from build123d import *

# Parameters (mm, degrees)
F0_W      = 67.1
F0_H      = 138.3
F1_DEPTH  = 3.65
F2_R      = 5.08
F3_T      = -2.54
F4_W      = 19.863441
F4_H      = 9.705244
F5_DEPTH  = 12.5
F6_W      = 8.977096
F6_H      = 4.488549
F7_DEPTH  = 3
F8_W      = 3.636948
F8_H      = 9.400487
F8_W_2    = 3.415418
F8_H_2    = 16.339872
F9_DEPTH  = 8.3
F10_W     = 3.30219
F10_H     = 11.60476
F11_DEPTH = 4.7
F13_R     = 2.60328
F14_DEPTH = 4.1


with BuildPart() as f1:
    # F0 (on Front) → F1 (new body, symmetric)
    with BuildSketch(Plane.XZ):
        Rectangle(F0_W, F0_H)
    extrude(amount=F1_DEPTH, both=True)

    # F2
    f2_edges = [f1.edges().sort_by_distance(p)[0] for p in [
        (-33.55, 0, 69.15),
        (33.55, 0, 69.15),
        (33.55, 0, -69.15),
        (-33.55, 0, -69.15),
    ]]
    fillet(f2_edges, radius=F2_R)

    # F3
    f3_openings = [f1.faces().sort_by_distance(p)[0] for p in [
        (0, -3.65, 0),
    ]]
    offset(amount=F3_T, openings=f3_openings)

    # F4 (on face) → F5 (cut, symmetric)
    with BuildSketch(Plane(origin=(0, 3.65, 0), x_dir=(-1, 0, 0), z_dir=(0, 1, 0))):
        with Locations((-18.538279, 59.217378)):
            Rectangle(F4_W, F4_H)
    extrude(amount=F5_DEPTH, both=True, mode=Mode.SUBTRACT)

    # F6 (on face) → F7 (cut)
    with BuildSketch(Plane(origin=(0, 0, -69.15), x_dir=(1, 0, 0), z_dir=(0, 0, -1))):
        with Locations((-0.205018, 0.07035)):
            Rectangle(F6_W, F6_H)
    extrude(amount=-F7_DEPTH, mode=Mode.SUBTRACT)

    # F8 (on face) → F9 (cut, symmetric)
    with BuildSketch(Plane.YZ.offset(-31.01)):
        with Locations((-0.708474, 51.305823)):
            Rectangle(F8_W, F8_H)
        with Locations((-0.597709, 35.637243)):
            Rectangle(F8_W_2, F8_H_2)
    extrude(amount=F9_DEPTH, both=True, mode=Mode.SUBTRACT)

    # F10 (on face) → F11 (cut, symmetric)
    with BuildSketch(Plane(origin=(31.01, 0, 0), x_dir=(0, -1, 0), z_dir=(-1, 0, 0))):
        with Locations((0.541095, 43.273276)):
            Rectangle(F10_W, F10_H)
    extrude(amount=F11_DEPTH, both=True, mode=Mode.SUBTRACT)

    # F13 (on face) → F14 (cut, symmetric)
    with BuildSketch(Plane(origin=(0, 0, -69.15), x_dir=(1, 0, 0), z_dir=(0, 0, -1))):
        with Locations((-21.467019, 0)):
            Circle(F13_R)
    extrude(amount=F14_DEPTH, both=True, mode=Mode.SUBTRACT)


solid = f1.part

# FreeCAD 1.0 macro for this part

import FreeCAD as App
import Part
import Sketcher
from FreeCAD import Vector
Q = App.Units.Quantity


def edges_at(feature, points):
    """Names of the edges that pass closest to the given points."""
    edges = feature.Shape.Edges
    near = lambda p: min(range(len(edges)), key=lambda i: edges[i].distToShape(Part.Vertex(*p))[0])
    return sorted({f"Edge{near(p) + 1}" for p in points})


def faces_at(feature, points):
    """Names of the faces that lie closest to the given points."""
    faces = feature.Shape.Faces
    near = lambda p: min(range(len(faces)), key=lambda i: faces[i].distToShape(Part.Vertex(*p))[0])
    return sorted({f"Face{near(p) + 1}" for p in points})


def add_polygon(sketch, points):
    """Adds a closed chain of lines whose ends are joined by coincident constraints."""
    first, n = sketch.GeometryCount, len(points)
    for a, b in zip(points, points[1:] + points[:1]):
        sketch.addGeometry(Part.LineSegment(App.Vector(*a, 0), App.Vector(*b, 0)), False)
    for i in range(n):
        sketch.addConstraint(Sketcher.Constraint("Coincident", first + i, 2, first + (i + 1) % n, 1))

doc = App.newDocument("Part")
body = doc.addObject("PartDesign::Body", "Body")

# Sketch on XZ plane
sketch1 = body.newObject("Sketcher::SketchObject", "Sketch")
sketch1.AttachmentSupport = (doc.getObject("XZ_Plane"), [""])
sketch1.MapMode = "FlatFace"
add_polygon(sketch1, [(-34, 69), (-34, -69), (34, -69), (34, 69)])  # lines 0-3
sketch1.addConstraint(Sketcher.Constraint("Vertical", 0))
sketch1.addConstraint(Sketcher.Constraint("Horizontal", 1))
sketch1.addConstraint(Sketcher.Constraint("Vertical", 2))
sketch1.addConstraint(Sketcher.Constraint("Horizontal", 3))
sketch1.addConstraint(Sketcher.Constraint("Symmetric", 0, 2, 2, 2, -1, 1))
sketch1.addConstraint(Sketcher.Constraint("DistanceX", 1, 1, 1, 2, Q("67.1 mm")))
sketch1.addConstraint(Sketcher.Constraint("DistanceY", 0, 2, 0, 1, Q("138.3 mm")))
pad1 = body.newObject("PartDesign::Pad", "Pad")
pad1.Profile = sketch1
pad1.Length = 7.3
pad1.Midplane = True
doc.recompute()

fillet = body.newObject("PartDesign::Fillet", "Fillet")
fillet.Base = (pad1, edges_at(pad1, [
    (-33.55, 0, 69.15),
    (33.55, 0, 69.15),
    (33.55, 0, -69.15),
    (-33.55, 0, -69.15),
]))
fillet.Radius = 5.08
doc.recompute()

thickness = body.newObject("PartDesign::Thickness", "Thickness")
thickness.Base = (fillet, faces_at(fillet, [(0, -3.65, 0)]))
thickness.Value = 2.54
thickness.Reversed = True
thickness.Join = "Arc"

# Sketch on XZ plane
sketch2 = body.newObject("Sketcher::SketchObject", "Sketch001")
sketch2.AttachmentSupport = (doc.getObject("XZ_Plane"), [""])
sketch2.MapMode = "FlatFace"
sketch2.AttachmentOffset = App.Placement(Vector(0, 0, -3.65), App.Rotation())
add_polygon(sketch2, [(28, 64), (28, 54), (9, 54), (9, 64)])  # lines 0-3
sketch2.addConstraint(Sketcher.Constraint("Vertical", 0))
sketch2.addConstraint(Sketcher.Constraint("Horizontal", 1))
sketch2.addConstraint(Sketcher.Constraint("Vertical", 2))
sketch2.addConstraint(Sketcher.Constraint("Horizontal", 3))
sketch2.addConstraint(Sketcher.Constraint("DistanceX", -1, 1, 0, 2, Q("28.47 mm")))
sketch2.addConstraint(Sketcher.Constraint("DistanceY", -1, 1, 2, 2, Q("64.07 mm")))
sketch2.addConstraint(Sketcher.Constraint("DistanceX", 1, 2, 1, 1, Q("19.863441 mm")))
sketch2.addConstraint(Sketcher.Constraint("DistanceY", 0, 2, 0, 1, Q("9.705244 mm")))
pocket1 = body.newObject("PartDesign::Pocket", "Pocket")
pocket1.Profile = sketch2
pocket1.Length = 25
pocket1.Midplane = True

# Sketch on XY plane
sketch3 = body.newObject("Sketcher::SketchObject", "Sketch002")
sketch3.AttachmentSupport = (doc.getObject("XY_Plane"), [""])
sketch3.MapMode = "FlatFace"
sketch3.AttachmentOffset = App.Placement(Vector(0, 0, -69.15), App.Rotation())
add_polygon(sketch3, [(-4.7, -2.3), (-4.7, 2.2), (4.3, 2.2), (4.3, -2.3)])  # lines 0-3
sketch3.addConstraint(Sketcher.Constraint("Vertical", 0))
sketch3.addConstraint(Sketcher.Constraint("Horizontal", 1))
sketch3.addConstraint(Sketcher.Constraint("Vertical", 2))
sketch3.addConstraint(Sketcher.Constraint("Horizontal", 3))
sketch3.addConstraint(Sketcher.Constraint("DistanceY", 0, 1, 0, 2, Q("4.488549 mm")))
sketch3.addConstraint(Sketcher.Constraint("DistanceX", 1, 1, 1, 2, Q("8.977096 mm")))
sketch3.addConstraint(Sketcher.Constraint("DistanceX", -1, 1, 1, 2, Q("4.28353 mm")))
sketch3.addConstraint(Sketcher.Constraint("DistanceY", -1, 1, 0, 2, Q("2.173925 mm")))
pocket2 = body.newObject("PartDesign::Pocket", "Pocket001")
pocket2.Profile = sketch3
pocket2.Length = 3
pocket2.Reversed = True

# Sketch on YZ plane
sketch4 = body.newObject("Sketcher::SketchObject", "Sketch003")
sketch4.AttachmentSupport = (doc.getObject("YZ_Plane"), [""])
sketch4.MapMode = "FlatFace"
sketch4.AttachmentOffset = App.Placement(Vector(0, 0, -31.01), App.Rotation())
add_polygon(sketch4, [(-2.5, 56), (-2.5, 46.6), (1.1, 46.6), (1.1, 56)])  # lines 0-3
add_polygon(sketch4, [(-2.3, 43.8), (-2.3, 27.5), (1.1, 27.5), (1.1, 43.8)])  # lines 4-7
sketch4.addConstraint(Sketcher.Constraint("Vertical", 0))
sketch4.addConstraint(Sketcher.Constraint("Horizontal", 1))
sketch4.addConstraint(Sketcher.Constraint("Vertical", 2))
sketch4.addConstraint(Sketcher.Constraint("Horizontal", 3))
sketch4.addConstraint(Sketcher.Constraint("Vertical", 4))
sketch4.addConstraint(Sketcher.Constraint("Horizontal", 5))
sketch4.addConstraint(Sketcher.Constraint("Vertical", 6))
sketch4.addConstraint(Sketcher.Constraint("Horizontal", 7))
sketch4.addConstraint(Sketcher.Constraint("Vertical", 2, 2, 5, 2))
sketch4.addConstraint(Sketcher.Constraint("DistanceX", -1, 1, 1, 2, Q("1.11 mm")))
sketch4.addConstraint(Sketcher.Constraint("DistanceX", 1, 1, 1, 2, Q("3.636948 mm")))
sketch4.addConstraint(Sketcher.Constraint("DistanceY", 4, 2, 4, 1, Q("16.339872 mm")))
sketch4.addConstraint(Sketcher.Constraint("DistanceY", 6, 2, 1, 2, Q("2.7984 mm")))
sketch4.addConstraint(Sketcher.Constraint("DistanceX", 5, 1, 5, 2, Q("3.415418 mm")))
sketch4.addConstraint(Sketcher.Constraint("DistanceY", 0, 2, 0, 1, Q("9.400487 mm")))
sketch4.addConstraint(Sketcher.Constraint("DistanceY", -1, 1, 0, 2, Q("46.605579 mm")))
pocket3 = body.newObject("PartDesign::Pocket", "Pocket002")
pocket3.Profile = sketch4
pocket3.Length = 16.6
pocket3.Midplane = True

# Sketch on YZ plane
sketch5 = body.newObject("Sketcher::SketchObject", "Sketch004")
sketch5.AttachmentSupport = (doc.getObject("YZ_Plane"), [""])
sketch5.MapMode = "FlatFace"
sketch5.AttachmentOffset = App.Placement(Vector(0, 0, 31.01), App.Rotation())
add_polygon(sketch5, [(1.1, 49.1), (1.1, 37.5), (-2.2, 37.5), (-2.2, 49.1)])  # lines 0-3
sketch5.addConstraint(Sketcher.Constraint("Vertical", 0))
sketch5.addConstraint(Sketcher.Constraint("Horizontal", 1))
sketch5.addConstraint(Sketcher.Constraint("Vertical", 2))
sketch5.addConstraint(Sketcher.Constraint("Horizontal", 3))
sketch5.addConstraint(Sketcher.Constraint("DistanceX", -1, 1, 0, 2, Q("1.11 mm")))
sketch5.addConstraint(Sketcher.Constraint("DistanceX", 1, 2, 1, 1, Q("3.30219 mm")))
sketch5.addConstraint(Sketcher.Constraint("DistanceY", 0, 2, 0, 1, Q("11.60476 mm")))
sketch5.addConstraint(Sketcher.Constraint("DistanceY", -1, 1, 0, 2, Q("37.470896 mm")))
pocket4 = body.newObject("PartDesign::Pocket", "Pocket003")
pocket4.Profile = sketch5
pocket4.Length = 9.4
pocket4.Midplane = True

# Sketch on XY plane
sketch6 = body.newObject("Sketcher::SketchObject", "Sketch005")
sketch6.AttachmentSupport = (doc.getObject("XY_Plane"), [""])
sketch6.MapMode = "FlatFace"
sketch6.AttachmentOffset = App.Placement(Vector(0, 0, -69.15), App.Rotation())
sketch6.addGeometry(Part.Circle(Vector(-21.5, 0, 0), Vector(0, 0, 1), 2.6), False)
sketch6.addConstraint(Sketcher.Constraint("PointOnObject", 0, 3, -1))
sketch6.addConstraint(Sketcher.Constraint("Diameter", 0, Q("5.20656 mm")))
sketch6.addConstraint(Sketcher.Constraint("DistanceX", 0, 3, -1, 1, Q("21.467019 mm")))
pocket5 = body.newObject("PartDesign::Pocket", "Pocket004")
pocket5.Profile = sketch6
pocket5.Length = 8.2
pocket5.Midplane = True

doc.recompute()
